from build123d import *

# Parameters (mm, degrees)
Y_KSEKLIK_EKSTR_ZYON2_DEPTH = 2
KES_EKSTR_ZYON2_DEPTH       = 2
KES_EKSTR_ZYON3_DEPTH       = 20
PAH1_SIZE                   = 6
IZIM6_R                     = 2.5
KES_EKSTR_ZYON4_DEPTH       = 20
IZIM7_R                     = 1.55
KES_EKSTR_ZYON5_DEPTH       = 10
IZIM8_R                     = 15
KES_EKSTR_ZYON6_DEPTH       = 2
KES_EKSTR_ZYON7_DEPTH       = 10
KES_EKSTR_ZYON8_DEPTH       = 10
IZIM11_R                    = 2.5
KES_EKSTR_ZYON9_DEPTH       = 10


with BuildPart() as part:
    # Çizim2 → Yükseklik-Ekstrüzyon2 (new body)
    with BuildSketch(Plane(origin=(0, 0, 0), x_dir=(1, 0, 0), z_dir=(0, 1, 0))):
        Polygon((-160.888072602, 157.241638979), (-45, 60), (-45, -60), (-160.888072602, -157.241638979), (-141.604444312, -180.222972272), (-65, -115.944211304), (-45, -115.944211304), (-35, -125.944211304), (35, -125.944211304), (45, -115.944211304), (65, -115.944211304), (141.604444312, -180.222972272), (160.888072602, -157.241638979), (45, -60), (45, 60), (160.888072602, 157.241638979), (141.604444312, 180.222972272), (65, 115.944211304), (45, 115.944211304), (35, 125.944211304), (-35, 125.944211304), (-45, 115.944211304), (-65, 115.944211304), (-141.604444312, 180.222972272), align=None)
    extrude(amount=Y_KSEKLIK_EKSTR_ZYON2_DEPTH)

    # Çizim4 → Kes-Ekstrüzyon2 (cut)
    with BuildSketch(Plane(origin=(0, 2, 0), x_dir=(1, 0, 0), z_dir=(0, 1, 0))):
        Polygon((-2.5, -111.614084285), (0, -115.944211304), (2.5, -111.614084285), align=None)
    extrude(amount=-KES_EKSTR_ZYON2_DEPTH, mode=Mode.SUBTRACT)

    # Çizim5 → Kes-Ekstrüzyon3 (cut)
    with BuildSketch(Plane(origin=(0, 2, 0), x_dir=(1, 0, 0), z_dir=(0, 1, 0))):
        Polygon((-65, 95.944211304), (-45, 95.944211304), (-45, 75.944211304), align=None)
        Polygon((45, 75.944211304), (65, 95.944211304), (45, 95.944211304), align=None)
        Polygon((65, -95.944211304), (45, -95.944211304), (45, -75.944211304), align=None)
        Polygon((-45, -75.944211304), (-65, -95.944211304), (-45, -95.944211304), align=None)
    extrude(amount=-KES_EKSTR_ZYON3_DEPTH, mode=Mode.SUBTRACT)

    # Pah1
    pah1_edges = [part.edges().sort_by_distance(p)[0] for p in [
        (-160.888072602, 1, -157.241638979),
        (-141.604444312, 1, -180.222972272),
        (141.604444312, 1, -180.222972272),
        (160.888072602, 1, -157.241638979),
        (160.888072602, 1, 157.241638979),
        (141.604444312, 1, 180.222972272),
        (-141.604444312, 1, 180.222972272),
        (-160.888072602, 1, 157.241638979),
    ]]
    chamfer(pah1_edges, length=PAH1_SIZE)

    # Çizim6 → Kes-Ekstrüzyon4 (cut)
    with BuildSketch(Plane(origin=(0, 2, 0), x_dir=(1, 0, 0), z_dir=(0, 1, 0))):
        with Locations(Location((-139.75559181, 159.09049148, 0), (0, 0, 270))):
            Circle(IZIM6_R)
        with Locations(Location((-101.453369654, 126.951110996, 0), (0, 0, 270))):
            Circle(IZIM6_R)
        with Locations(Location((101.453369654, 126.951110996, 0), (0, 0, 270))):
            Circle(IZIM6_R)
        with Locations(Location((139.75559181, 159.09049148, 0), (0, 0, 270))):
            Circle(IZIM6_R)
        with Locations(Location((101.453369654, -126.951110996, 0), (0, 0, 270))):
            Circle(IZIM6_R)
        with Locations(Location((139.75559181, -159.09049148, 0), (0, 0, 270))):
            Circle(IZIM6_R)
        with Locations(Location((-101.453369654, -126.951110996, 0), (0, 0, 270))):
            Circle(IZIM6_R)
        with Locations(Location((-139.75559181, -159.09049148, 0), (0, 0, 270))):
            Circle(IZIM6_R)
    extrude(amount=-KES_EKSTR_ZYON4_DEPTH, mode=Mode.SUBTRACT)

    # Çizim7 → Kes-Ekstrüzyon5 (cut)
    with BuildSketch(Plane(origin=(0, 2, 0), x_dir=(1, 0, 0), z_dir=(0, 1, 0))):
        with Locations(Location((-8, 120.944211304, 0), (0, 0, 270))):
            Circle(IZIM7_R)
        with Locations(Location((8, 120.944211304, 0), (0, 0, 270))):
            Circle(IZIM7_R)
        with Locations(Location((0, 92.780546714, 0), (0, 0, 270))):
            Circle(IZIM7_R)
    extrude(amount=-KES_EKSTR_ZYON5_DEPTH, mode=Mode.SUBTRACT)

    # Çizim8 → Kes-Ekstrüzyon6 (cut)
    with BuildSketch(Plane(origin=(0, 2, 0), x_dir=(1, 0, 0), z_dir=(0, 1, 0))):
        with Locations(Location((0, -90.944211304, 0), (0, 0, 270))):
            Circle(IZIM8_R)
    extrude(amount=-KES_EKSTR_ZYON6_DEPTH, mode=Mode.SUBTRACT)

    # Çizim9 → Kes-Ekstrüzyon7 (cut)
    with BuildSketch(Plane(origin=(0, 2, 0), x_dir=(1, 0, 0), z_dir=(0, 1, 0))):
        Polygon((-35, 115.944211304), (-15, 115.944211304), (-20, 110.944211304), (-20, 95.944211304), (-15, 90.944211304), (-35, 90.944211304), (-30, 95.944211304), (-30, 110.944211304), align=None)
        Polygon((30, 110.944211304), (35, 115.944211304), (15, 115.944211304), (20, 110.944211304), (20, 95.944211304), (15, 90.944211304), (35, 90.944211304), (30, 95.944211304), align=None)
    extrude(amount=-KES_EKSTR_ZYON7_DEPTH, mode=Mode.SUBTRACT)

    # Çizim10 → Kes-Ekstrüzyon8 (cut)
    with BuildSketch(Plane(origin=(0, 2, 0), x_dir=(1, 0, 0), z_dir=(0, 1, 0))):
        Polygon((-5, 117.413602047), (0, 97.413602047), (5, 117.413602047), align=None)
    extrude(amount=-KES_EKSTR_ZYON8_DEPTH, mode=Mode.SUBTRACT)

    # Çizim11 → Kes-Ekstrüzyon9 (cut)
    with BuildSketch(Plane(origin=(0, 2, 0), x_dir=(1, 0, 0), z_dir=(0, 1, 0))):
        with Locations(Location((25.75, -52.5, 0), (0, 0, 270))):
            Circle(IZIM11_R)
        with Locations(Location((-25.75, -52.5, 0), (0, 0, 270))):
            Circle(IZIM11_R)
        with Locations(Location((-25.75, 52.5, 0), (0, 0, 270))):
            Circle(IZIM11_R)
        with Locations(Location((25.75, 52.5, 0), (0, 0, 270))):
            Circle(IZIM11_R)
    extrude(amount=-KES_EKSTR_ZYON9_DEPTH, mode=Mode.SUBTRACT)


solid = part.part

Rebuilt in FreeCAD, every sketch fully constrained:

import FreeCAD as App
import Part
import Sketcher
Q = App.Units.Quantity


def edges_at(feature, points):
    """Names of the edges that pass closest to the given points."""
    edges = feature.Shape.Edges
    near = lambda p: min(range(len(edges)), key=lambda i: edges[i].distToShape(Part.Vertex(*p))[0])
    return sorted({f"Edge{near(p) + 1}" for p in points})

doc = App.newDocument("Part")
body = doc.addObject("PartDesign::Body", "Body")

# Sketch on XZ plane
sketch1 = body.newObject("Sketcher::SketchObject", "Sketch")
sketch1.AttachmentSupport = (doc.getObject("XZ_Plane"), [""])
sketch1.MapMode = "FlatFace"
sketch1.addGeometry(Part.LineSegment(App.Vector(-161, -157, 0), App.Vector(-45, -60, 0)), False)
sketch1.addGeometry(Part.LineSegment(App.Vector(-45, -60, 0), App.Vector(-45, 60, 0)), False)
sketch1.addGeometry(Part.LineSegment(App.Vector(-45, 60, 0), App.Vector(-161, 157, 0)), False)
sketch1.addGeometry(Part.LineSegment(App.Vector(-161, 157, 0), App.Vector(-142, 180, 0)), False)
sketch1.addGeometry(Part.LineSegment(App.Vector(-142, 180, 0), App.Vector(-65, 116, 0)), False)
sketch1.addGeometry(Part.LineSegment(App.Vector(-65, 116, 0), App.Vector(-45, 116, 0)), False)
sketch1.addGeometry(Part.LineSegment(App.Vector(-45, 116, 0), App.Vector(-35, 126, 0)), False)
sketch1.addGeometry(Part.LineSegment(App.Vector(-35, 126, 0), App.Vector(35, 126, 0)), False)
sketch1.addGeometry(Part.LineSegment(App.Vector(35, 126, 0), App.Vector(45, 116, 0)), False)
sketch1.addGeometry(Part.LineSegment(App.Vector(45, 116, 0), App.Vector(65, 116, 0)), False)
sketch1.addGeometry(Part.LineSegment(App.Vector(65, 116, 0), App.Vector(142, 180, 0)), False)
sketch1.addGeometry(Part.LineSegment(App.Vector(142, 180, 0), App.Vector(161, 157, 0)), False)
sketch1.addGeometry(Part.LineSegment(App.Vector(161, 157, 0), App.Vector(45, 60, 0)), False)
sketch1.addGeometry(Part.LineSegment(App.Vector(45, 60, 0), App.Vector(45, -60, 0)), False)
sketch1.addGeometry(Part.LineSegment(App.Vector(45, -60, 0), App.Vector(161, -157, 0)), False)
sketch1.addGeometry(Part.LineSegment(App.Vector(161, -157, 0), App.Vector(142, -180, 0)), False)
sketch1.addGeometry(Part.LineSegment(App.Vector(142, -180, 0), App.Vector(65, -116, 0)), False)
sketch1.addGeometry(Part.LineSegment(App.Vector(65, -116, 0), App.Vector(45, -116, 0)), False)
sketch1.addGeometry(Part.LineSegment(App.Vector(45, -116, 0), App.Vector(35, -126, 0)), False)
sketch1.addGeometry(Part.LineSegment(App.Vector(35, -126, 0), App.Vector(-35, -126, 0)), False)
sketch1.addGeometry(Part.LineSegment(App.Vector(-35, -126, 0), App.Vector(-45, -116, 0)), False)
sketch1.addGeometry(Part.LineSegment(App.Vector(-45, -116, 0), App.Vector(-65, -116, 0)), False)
sketch1.addGeometry(Part.LineSegment(App.Vector(-65, -116, 0), App.Vector(-142, -180, 0)), False)
sketch1.addGeometry(Part.LineSegment(App.Vector(-142, -180, 0), App.Vector(-161, -157, 0)), False)
sketch1.addConstraint(Sketcher.Constraint("Coincident", 0, 2, 1, 1))
sketch1.addConstraint(Sketcher.Constraint("Coincident", 1, 2, 2, 1))
sketch1.addConstraint(Sketcher.Constraint("Coincident", 2, 2, 3, 1))
sketch1.addConstraint(Sketcher.Constraint("Coincident", 3, 2, 4, 1))
sketch1.addConstraint(Sketcher.Constraint("Coincident", 4, 2, 5, 1))
sketch1.addConstraint(Sketcher.Constraint("Coincident", 5, 2, 6, 1))
sketch1.addConstraint(Sketcher.Constraint("Coincident", 6, 2, 7, 1))
sketch1.addConstraint(Sketcher.Constraint("Coincident", 7, 2, 8, 1))
sketch1.addConstraint(Sketcher.Constraint("Coincident", 8, 2, 9, 1))
sketch1.addConstraint(Sketcher.Constraint("Coincident", 9, 2, 10, 1))
sketch1.addConstraint(Sketcher.Constraint("Coincident", 10, 2, 11, 1))
sketch1.addConstraint(Sketcher.Constraint("Coincident", 11, 2, 12, 1))
sketch1.addConstraint(Sketcher.Constraint("Coincident", 12, 2, 13, 1))
sketch1.addConstraint(Sketcher.Constraint("Coincident", 13, 2, 14, 1))
sketch1.addConstraint(Sketcher.Constraint("Coincident", 14, 2, 15, 1))
sketch1.addConstraint(Sketcher.Constraint("Coincident", 15, 2, 16, 1))
sketch1.addConstraint(Sketcher.Constraint("Coincident", 16, 2, 17, 1))
sketch1.addConstraint(Sketcher.Constraint("Coincident", 17, 2, 18, 1))
sketch1.addConstraint(Sketcher.Constraint("Coincident", 18, 2, 19, 1))
sketch1.addConstraint(Sketcher.Constraint("Coincident", 19, 2, 20, 1))
sketch1.addConstraint(Sketcher.Constraint("Coincident", 20, 2, 21, 1))
sketch1.addConstraint(Sketcher.Constraint("Coincident", 21, 2, 22, 1))
sketch1.addConstraint(Sketcher.Constraint("Coincident", 22, 2, 23, 1))
sketch1.addConstraint(Sketcher.Constraint("Coincident", 23, 2, 0, 1))
sketch1.addConstraint(Sketcher.Constraint("Vertical", 1))
sketch1.addConstraint(Sketcher.Constraint("Horizontal", 5))
sketch1.addConstraint(Sketcher.Constraint("Horizontal", 7))
sketch1.addConstraint(Sketcher.Constraint("Horizontal", 9))
sketch1.addConstraint(Sketcher.Constraint("Vertical", 13))
sketch1.addConstraint(Sketcher.Constraint("Horizontal", 17))
sketch1.addConstraint(Sketcher.Constraint("Horizontal", 19))
sketch1.addConstraint(Sketcher.Constraint("Horizontal", 21))
sketch1.addConstraint(Sketcher.Constraint("Symmetric", 0, 2, 12, 2, -1, 1))
sketch1.addConstraint(Sketcher.Constraint("Symmetric", 2, 2, 14, 2, -1, 1))
sketch1.addConstraint(Sketcher.Constraint("Symmetric", 3, 2, 15, 2, -1, 1))
sketch1.addConstraint(Sketcher.Constraint("Symmetric", 4, 2, 16, 2, -1, 1))
sketch1.addConstraint(Sketcher.Constraint("Symmetric", 6, 2, 18, 2, -1, 1))
sketch1.addConstraint(Sketcher.Constraint("Symmetric", 8, 2, 20, 2, -1, 1))
sketch1.addConstraint(Sketcher.Constraint("Symmetric", 10, 2, 22, 2, -1, 1))
sketch1.addConstraint(Sketcher.Constraint("Symmetric", 11, 2, 23, 2, -1, 1))
sketch1.addConstraint(Sketcher.Constraint("Symmetric", 5, 2, 8, 2, -2))
sketch1.addConstraint(Sketcher.Constraint("Symmetric", 3, 2, 10, 2, -2))
sketch1.addConstraint(Sketcher.Constraint("Symmetric", 2, 2, 11, 2, -2))
sketch1.addConstraint(Sketcher.Constraint("Perpendicular", 2, 3))
sketch1.addConstraint(Sketcher.Constraint("Perpendicular", 3, 4))
sketch1.addConstraint(Sketcher.Constraint("Perpendicular", 6, 8))
sketch1.addConstraint(Sketcher.Constraint("Parallel", 0, 10))
sketch1.addConstraint(Sketcher.Constraint("Perpendicular", 10, 11))
sketch1.addConstraint(Sketcher.Constraint("Parallel", 4, 14))
sketch1.addConstraint(Sketcher.Constraint("Perpendicular", 8, 18))
sketch1.addConstraint(Sketcher.Constraint("Perpendicular", 18, 20))
sketch1.addConstraint(Sketcher.Constraint("Parallel", 12, 22))
sketch1.addConstraint(Sketcher.Constraint("Vertical", 1, 2, 5, 2))
sketch1.addConstraint(Sketcher.Constraint("Vertical", 7, 2, 18, 2))
sketch1.addConstraint(Sketcher.Constraint("DistanceX", 5, 1, 5, 2, 20.0))
sketch1.addConstraint(Sketcher.Constraint("DistanceX", 7, 1, 7, 2, 70.0))
sketch1.addConstraint(Sketcher.Constraint("DistanceY", 1, 1, 1, 2, 120.0))
sketch1.addConstraint(Sketcher.Constraint("Angle", 0, Q("40 deg")))
sketch1.addConstraint(Sketcher.Constraint("Distance", 3, 30.0))
sketch1.addConstraint(Sketcher.Constraint("Distance", 4, 100.0))
sketch1.addConstraint(Sketcher.Constraint("DistanceX", 0, 2, -1, 1, 45.0))
pad1 = body.newObject("PartDesign::Pad", "Pad")
pad1.Profile = sketch1
pad1.Length = 2
pad1.Reversed = True

# Sketch on XZ plane
sketch2 = body.newObject("Sketcher::SketchObject", "Sketch001")
sketch2.AttachmentSupport = (doc.getObject("XZ_Plane"), [""])
sketch2.MapMode = "FlatFace"
sketch2.AttachmentOffset = App.Placement(App.Vector(0, 0, -2), App.Rotation())
sketch2.addGeometry(Part.LineSegment(App.Vector(-2, 112, 0), App.Vector(0, 116, 0)), False)
sketch2.addGeometry(Part.LineSegment(App.Vector(0, 116, 0), App.Vector(2, 112, 0)), False)
sketch2.addGeometry(Part.LineSegment(App.Vector(2, 112, 0), App.Vector(-2, 112, 0)), False)
sketch2.addConstraint(Sketcher.Constraint("Coincident", 0, 2, 1, 1))
sketch2.addConstraint(Sketcher.Constraint("Coincident", 1, 2, 2, 1))
sketch2.addConstraint(Sketcher.Constraint("Coincident", 2, 2, 0, 1))
sketch2.addConstraint(Sketcher.Constraint("Horizontal", 2))
sketch2.addConstraint(Sketcher.Constraint("PointOnObject", 0, 2, -2))
sketch2.addConstraint(Sketcher.Constraint("Equal", 0, 1))
sketch2.addConstraint(Sketcher.Constraint("DistanceX", 2, 2, 2, 1, 5.0))
sketch2.addConstraint(Sketcher.Constraint("Angle", 0, Q("60 deg")))
sketch2.addConstraint(Sketcher.Constraint("DistanceY", -1, 1, 0, 2, 115.944211))
pocket1 = body.newObject("PartDesign::Pocket", "Pocket")
pocket1.Profile = sketch2
pocket1.Length = 2
pocket1.Reversed = True

# Sketch on XZ plane
sketch3 = body.newObject("Sketcher::SketchObject", "Sketch002")
sketch3.AttachmentSupport = (doc.getObject("XZ_Plane"), [""])
sketch3.MapMode = "FlatFace"
sketch3.AttachmentOffset = App.Placement(App.Vector(0, 0, -2), App.Rotation())
sketch3.addGeometry(Part.LineSegment(App.Vector(-45, -96, 0), App.Vector(-65, -96, 0)), False)
sketch3.addGeometry(Part.LineSegment(App.Vector(-65, -96, 0), App.Vector(-45, -76, 0)), False)
sketch3.addGeometry(Part.LineSegment(App.Vector(-45, -76, 0), App.Vector(-45, -96, 0)), False)
sketch3.addGeometry(Part.LineSegment(App.Vector(45, -76, 0), App.Vector(65, -96, 0)), False)
sketch3.addGeometry(Part.LineSegment(App.Vector(65, -96, 0), App.Vector(45, -96, 0)), False)
sketch3.addGeometry(Part.LineSegment(App.Vector(45, -96, 0), App.Vector(45, -76, 0)), False)
sketch3.addGeometry(Part.LineSegment(App.Vector(45, 96, 0), App.Vector(65, 96, 0)), False)
sketch3.addGeometry(Part.LineSegment(App.Vector(65, 96, 0), App.Vector(45, 76, 0)), False)
sketch3.addGeometry(Part.LineSegment(App.Vector(45, 76, 0), App.Vector(45, 96, 0)), False)
sketch3.addGeometry(Part.LineSegment(App.Vector(-45, 76, 0), App.Vector(-65, 96, 0)), False)
sketch3.addGeometry(Part.LineSegment(App.Vector(-65, 96, 0), App.Vector(-45, 96, 0)), False)
sketch3.addGeometry(Part.LineSegment(App.Vector(-45, 96, 0), App.Vector(-45, 76, 0)), False)
sketch3.addConstraint(Sketcher.Constraint("Coincident", 0, 2, 1, 1))
sketch3.addConstraint(Sketcher.Constraint("Coincident", 1, 2, 2, 1))
sketch3.addConstraint(Sketcher.Constraint("Coincident", 2, 2, 0, 1))
sketch3.addConstraint(Sketcher.Constraint("Coincident", 3, 2, 4, 1))
sketch3.addConstraint(Sketcher.Constraint("Coincident", 4, 2, 5, 1))
sketch3.addConstraint(Sketcher.Constraint("Coincident", 5, 2, 3, 1))
sketch3.addConstraint(Sketcher.Constraint("Coincident", 6, 2, 7, 1))
sketch3.addConstraint(Sketcher.Constraint("Coincident", 7, 2, 8, 1))
sketch3.addConstraint(Sketcher.Constraint("Coincident", 8, 2, 6, 1))
sketch3.addConstraint(Sketcher.Constraint("Coincident", 9, 2, 10, 1))
sketch3.addConstraint(Sketcher.Constraint("Coincident", 10, 2, 11, 1))
sketch3.addConstraint(Sketcher.Constraint("Coincident", 11, 2, 9, 1))
sketch3.addConstraint(Sketcher.Constraint("Horizontal", 0))
sketch3.addConstraint(Sketcher.Constraint("Vertical", 2))
sketch3.addConstraint(Sketcher.Constraint("Horizontal", 4))
sketch3.addConstraint(Sketcher.Constraint("Vertical", 5))
sketch3.addConstraint(Sketcher.Constraint("Horizontal", 6))
sketch3.addConstraint(Sketcher.Constraint("Vertical", 8))
sketch3.addConstraint(Sketcher.Constraint("Horizontal", 10))
sketch3.addConstraint(Sketcher.Constraint("Vertical", 11))
sketch3.addConstraint(Sketcher.Constraint("Symmetric", 0, 2, 6, 2, -1, 1))
sketch3.addConstraint(Sketcher.Constraint("Symmetric", 1, 2, 7, 2, -1, 1))
sketch3.addConstraint(Sketcher.Constraint("Symmetric", 3, 2, 9, 2, -1, 1))
sketch3.addConstraint(Sketcher.Constraint("Symmetric", 5, 2, 11, 2, -1, 1))
sketch3.addConstraint(Sketcher.Constraint("Symmetric", 0, 2, 3, 2, -2))
sketch3.addConstraint(Sketcher.Constraint("Symmetric", 1, 2, 5, 2, -2))
sketch3.addConstraint(Sketcher.Constraint("Perpendicular", 1, 3))
sketch3.addConstraint(Sketcher.Constraint("DistanceX", 0, 2, 0, 1, 20.0))
sketch3.addConstraint(Sketcher.Constraint("DistanceX", 0, 2, -1, 1, 65.0))
sketch3.addConstraint(Sketcher.Constraint("DistanceY", 0, 2, -1, 1, 95.944211))
pocket2 = body.newObject("PartDesign::Pocket", "Pocket001")
pocket2.Profile = sketch3
pocket2.Length = 20
pocket2.Reversed = True
doc.recompute()

chamfer = body.newObject("PartDesign::Chamfer", "Chamfer")
chamfer.Base = (pocket2, edges_at(pocket2, [
    (-160.888, 1, -157.242),
    (-141.604, 1, -180.223),
    (141.604, 1, -180.223),
    (160.888, 1, -157.242),
    (160.888, 1, 157.242),
    (141.604, 1, 180.223),
    (-141.604, 1, 180.223),
    (-160.888, 1, 157.242),
]))
chamfer.Size = 6

# Sketch on XZ plane
sketch4 = body.newObject("Sketcher::SketchObject", "Sketch003")
sketch4.AttachmentSupport = (doc.getObject("XZ_Plane"), [""])
sketch4.MapMode = "FlatFace"
sketch4.AttachmentOffset = App.Placement(App.Vector(0, 0, -2), App.Rotation())
sketch4.addGeometry(Part.Circle(App.Vector(-139.8, -159.1, 0), App.Vector(0, 0, 1), 2.5), False)
sketch4.addGeometry(Part.Circle(App.Vector(-101.5, -127, 0), App.Vector(0, 0, 1), 2.5), False)
sketch4.addGeometry(Part.Circle(App.Vector(101.5, -127, 0), App.Vector(0, 0, 1), 2.5), False)
sketch4.addGeometry(Part.Circle(App.Vector(139.8, -159.1, 0), App.Vector(0, 0, 1), 2.5), False)
sketch4.addGeometry(Part.Circle(App.Vector(101.5, 127, 0), App.Vector(0, 0, 1), 2.5), False)
sketch4.addGeometry(Part.Circle(App.Vector(139.8, 159.1, 0), App.Vector(0, 0, 1), 2.5), False)
sketch4.addGeometry(Part.Circle(App.Vector(-101.5, 127, 0), App.Vector(0, 0, 1), 2.5), False)
sketch4.addGeometry(Part.Circle(App.Vector(-139.8, 159.1, 0), App.Vector(0, 0, 1), 2.5), False)
sketch4.addConstraint(Sketcher.Constraint("Equal", 0, 1))
sketch4.addConstraint(Sketcher.Constraint("Equal", 1, 2))
sketch4.addConstraint(Sketcher.Constraint("Equal", 2, 3))
sketch4.addConstraint(Sketcher.Constraint("Equal", 3, 4))
sketch4.addConstraint(Sketcher.Constraint("Equal", 4, 5))
sketch4.addConstraint(Sketcher.Constraint("Equal", 5, 6))
sketch4.addConstraint(Sketcher.Constraint("Equal", 6, 7))
sketch4.addConstraint(Sketcher.Constraint("Symmetric", 1, 3, 4, 3, -1, 1))
sketch4.addConstraint(Sketcher.Constraint("Symmetric", 0, 3, 5, 3, -1, 1))
sketch4.addConstraint(Sketcher.Constraint("Symmetric", 2, 3, 6, 3, -1, 1))
sketch4.addConstraint(Sketcher.Constraint("Symmetric", 3, 3, 7, 3, -1, 1))
sketch4.addConstraint(Sketcher.Constraint("Symmetric", 1, 3, 2, 3, -2))
sketch4.addConstraint(Sketcher.Constraint("Symmetric", 0, 3, 3, 3, -2))
sketch4.addConstraint(Sketcher.Constraint("Diameter", 0, 5.0))
sketch4.addConstraint(Sketcher.Constraint("DistanceX", 0, 3, -1, 1, 139.755592))
sketch4.addConstraint(Sketcher.Constraint("DistanceY", 0, 3, -1, 1, 159.090491))
sketch4.addConstraint(Sketcher.Constraint("DistanceX", 1, 3, -1, 1, 101.45337))
sketch4.addConstraint(Sketcher.Constraint("DistanceY", 1, 3, -1, 1, 126.951111))
pocket3 = body.newObject("PartDesign::Pocket", "Pocket002")
pocket3.Profile = sketch4
pocket3.Length = 20
pocket3.Reversed = True

# Sketch on XZ plane
sketch5 = body.newObject("Sketcher::SketchObject", "Sketch004")
sketch5.AttachmentSupport = (doc.getObject("XZ_Plane"), [""])
sketch5.MapMode = "FlatFace"
sketch5.AttachmentOffset = App.Placement(App.Vector(0, 0, -2), App.Rotation())
sketch5.addGeometry(Part.Circle(App.Vector(-8, -120.9, 0), App.Vector(0, 0, 1), 1.6), False)
sketch5.addGeometry(Part.Circle(App.Vector(8, -120.9, 0), App.Vector(0, 0, 1), 1.6), False)
sketch5.addGeometry(Part.Circle(App.Vector(0, -92.8, 0), App.Vector(0, 0, 1), 1.6), False)
sketch5.addConstraint(Sketcher.Constraint("Equal", 0, 1))
sketch5.addConstraint(Sketcher.Constraint("Equal", 1, 2))
sketch5.addConstraint(Sketcher.Constraint("Symmetric", 0, 3, 1, 3, -2))
sketch5.addConstraint(Sketcher.Constraint("PointOnObject", 2, 3, -2))
sketch5.addConstraint(Sketcher.Constraint("Diameter", 0, 3.1))
sketch5.addConstraint(Sketcher.Constraint("DistanceX", 0, 3, -1, 1, 8.0))
sketch5.addConstraint(Sketcher.Constraint("DistanceY", 0, 3, -1, 1, 120.944211))
sketch5.addConstraint(Sketcher.Constraint("DistanceY", 2, 3, -1, 1, 92.780547))
pocket4 = body.newObject("PartDesign::Pocket", "Pocket003")
pocket4.Profile = sketch5
pocket4.Length = 10
pocket4.Reversed = True

# Sketch on XZ plane
sketch6 = body.newObject("Sketcher::SketchObject", "Sketch005")
sketch6.AttachmentSupport = (doc.getObject("XZ_Plane"), [""])
sketch6.MapMode = "FlatFace"
sketch6.AttachmentOffset = App.Placement(App.Vector(0, 0, -2), App.Rotation())
sketch6.addGeometry(Part.Circle(App.Vector(0, 91, 0), App.Vector(0, 0, 1), 15), False)
sketch6.addConstraint(Sketcher.Constraint("PointOnObject", 0, 3, -2))
sketch6.addConstraint(Sketcher.Constraint("Diameter", 0, 30.0))
sketch6.addConstraint(Sketcher.Constraint("DistanceY", -1, 1, 0, 3, 90.944211))
pocket5 = body.newObject("PartDesign::Pocket", "Pocket004")
pocket5.Profile = sketch6
pocket5.Length = 2
pocket5.Reversed = True

# Sketch on XZ plane
sketch7 = body.newObject("Sketcher::SketchObject", "Sketch006")
sketch7.AttachmentSupport = (doc.getObject("XZ_Plane"), [""])
sketch7.MapMode = "FlatFace"
sketch7.AttachmentOffset = App.Placement(App.Vector(0, 0, -2), App.Rotation())
sketch7.addGeometry(Part.LineSegment(App.Vector(-15, -116, 0), App.Vector(-35, -116, 0)), False)
sketch7.addGeometry(Part.LineSegment(App.Vector(-35, -116, 0), App.Vector(-30, -111, 0)), False)
sketch7.addGeometry(Part.LineSegment(App.Vector(-30, -111, 0), App.Vector(-30, -96, 0)), False)
sketch7.addGeometry(Part.LineSegment(App.Vector(-30, -96, 0), App.Vector(-35, -91, 0)), False)
sketch7.addGeometry(Part.LineSegment(App.Vector(-35, -91, 0), App.Vector(-15, -91, 0)), False)
sketch7.addGeometry(Part.LineSegment(App.Vector(-15, -91, 0), App.Vector(-20, -96, 0)), False)
sketch7.addGeometry(Part.LineSegment(App.Vector(-20, -96, 0), App.Vector(-20, -111, 0)), False)
sketch7.addGeometry(Part.LineSegment(App.Vector(-20, -111, 0), App.Vector(-15, -116, 0)), False)
sketch7.addGeometry(Part.LineSegment(App.Vector(30, -111, 0), App.Vector(35, -116, 0)), False)
sketch7.addGeometry(Part.LineSegment(App.Vector(35, -116, 0), App.Vector(15, -116, 0)), False)
sketch7.addGeometry(Part.LineSegment(App.Vector(15, -116, 0), App.Vector(20, -111, 0)), False)
sketch7.addGeometry(Part.LineSegment(App.Vector(20, -111, 0), App.Vector(20, -96, 0)), False)
sketch7.addGeometry(Part.LineSegment(App.Vector(20, -96, 0), App.Vector(15, -91, 0)), False)
sketch7.addGeometry(Part.LineSegment(App.Vector(15, -91, 0), App.Vector(35, -91, 0)), False)
sketch7.addGeometry(Part.LineSegment(App.Vector(35, -91, 0), App.Vector(30, -96, 0)), False)
sketch7.addGeometry(Part.LineSegment(App.Vector(30, -96, 0), App.Vector(30, -111, 0)), False)
sketch7.addConstraint(Sketcher.Constraint("Coincident", 0, 2, 1, 1))
sketch7.addConstraint(Sketcher.Constraint("Coincident", 1, 2, 2, 1))
sketch7.addConstraint(Sketcher.Constraint("Coincident", 2, 2, 3, 1))
sketch7.addConstraint(Sketcher.Constraint("Coincident", 3, 2, 4, 1))
sketch7.addConstraint(Sketcher.Constraint("Coincident", 4, 2, 5, 1))
sketch7.addConstraint(Sketcher.Constraint("Coincident", 5, 2, 6, 1))
sketch7.addConstraint(Sketcher.Constraint("Coincident", 6, 2, 7, 1))
sketch7.addConstraint(Sketcher.Constraint("Coincident", 7, 2, 0, 1))
sketch7.addConstraint(Sketcher.Constraint("Coincident", 8, 2, 9, 1))
sketch7.addConstraint(Sketcher.Constraint("Coincident", 9, 2, 10, 1))
sketch7.addConstraint(Sketcher.Constraint("Coincident", 10, 2, 11, 1))
sketch7.addConstraint(Sketcher.Constraint("Coincident", 11, 2, 12, 1))
sketch7.addConstraint(Sketcher.Constraint("Coincident", 12, 2, 13, 1))
sketch7.addConstraint(Sketcher.Constraint("Coincident", 13, 2, 14, 1))
sketch7.addConstraint(Sketcher.Constraint("Coincident", 14, 2, 15, 1))
sketch7.addConstraint(Sketcher.Constraint("Coincident", 15, 2, 8, 1))
sketch7.addConstraint(Sketcher.Constraint("Horizontal", 0))
sketch7.addConstraint(Sketcher.Constraint("Vertical", 2))
sketch7.addConstraint(Sketcher.Constraint("Horizontal", 4))
sketch7.addConstraint(Sketcher.Constraint("Vertical", 6))
sketch7.addConstraint(Sketcher.Constraint("Horizontal", 9))
sketch7.addConstraint(Sketcher.Constraint("Vertical", 11))
sketch7.addConstraint(Sketcher.Constraint("Horizontal", 13))
sketch7.addConstraint(Sketcher.Constraint("Vertical", 15))
sketch7.addConstraint(Sketcher.Constraint("Symmetric", 0, 2, 8, 2, -2))
sketch7.addConstraint(Sketcher.Constraint("Symmetric", 6, 2, 10, 2, -2))
sketch7.addConstraint(Sketcher.Constraint("Symmetric", 4, 2, 12, 2, -2))
sketch7.addConstraint(Sketcher.Constraint("Symmetric", 2, 2, 14, 2, -2))
sketch7.addConstraint(Sketcher.Constraint("Perpendicular", 1, 3))
sketch7.addConstraint(Sketcher.Constraint("Perpendicular", 3, 5))
sketch7.addConstraint(Sketcher.Constraint("Perpendicular", 5, 7))
sketch7.addConstraint(Sketcher.Constraint("Parallel", 7, 8))
sketch7.addConstraint(Sketcher.Constraint("Perpendicular", 8, 10))
sketch7.addConstraint(Sketcher.Constraint("Perpendicular", 10, 12))
sketch7.addConstraint(Sketcher.Constraint("Perpendicular", 12, 14))
sketch7.addConstraint(Sketcher.Constraint("Horizontal", 2, 2, 5, 2))
sketch7.addConstraint(Sketcher.Constraint("Horizontal", 1, 2, 6, 2))
sketch7.addConstraint(Sketcher.Constraint("Horizontal", 5, 2, 11, 2))
sketch7.addConstraint(Sketcher.Constraint("Vertical", 0, 2, 3, 2))
sketch7.addConstraint(Sketcher.Constraint("DistanceX", 0, 2, 0, 1, 20.0))
sketch7.addConstraint(Sketcher.Constraint("DistanceY", 2, 1, 2, 2, 15.0))
sketch7.addConstraint(Sketcher.Constraint("DistanceX", 0, 2, -1, 1, 35.0))
sketch7.addConstraint(Sketcher.Constraint("DistanceX", 1, 2, -1, 1, 30.0))
sketch7.addConstraint(Sketcher.Constraint("DistanceY", 0, 2, -1, 1, 115.944211))
pocket6 = body.newObject("PartDesign::Pocket", "Pocket005")
pocket6.Profile = sketch7
pocket6.Length = 10
pocket6.Reversed = True

# Sketch on XZ plane
sketch8 = body.newObject("Sketcher::SketchObject", "Sketch007")
sketch8.AttachmentSupport = (doc.getObject("XZ_Plane"), [""])
sketch8.MapMode = "FlatFace"
sketch8.AttachmentOffset = App.Placement(App.Vector(0, 0, -2), App.Rotation())
sketch8.addGeometry(Part.LineSegment(App.Vector(-5, -117, 0), App.Vector(0, -97, 0)), False)
sketch8.addGeometry(Part.LineSegment(App.Vector(0, -97, 0), App.Vector(5, -117, 0)), False)
sketch8.addGeometry(Part.LineSegment(App.Vector(5, -117, 0), App.Vector(-5, -117, 0)), False)
sketch8.addConstraint(Sketcher.Constraint("Coincident", 0, 2, 1, 1))
sketch8.addConstraint(Sketcher.Constraint("Coincident", 1, 2, 2, 1))
sketch8.addConstraint(Sketcher.Constraint("Coincident", 2, 2, 0, 1))
sketch8.addConstraint(Sketcher.Constraint("Horizontal", 2))
sketch8.addConstraint(Sketcher.Constraint("PointOnObject", 0, 2, -2))
sketch8.addConstraint(Sketcher.Constraint("Equal", 0, 1))
sketch8.addConstraint(Sketcher.Constraint("DistanceX", 2, 2, 2, 1, 10.0))
sketch8.addConstraint(Sketcher.Constraint("DistanceY", 1, 2, 0, 2, 20.0))
sketch8.addConstraint(Sketcher.Constraint("DistanceY", 0, 2, -1, 1, 97.413602))
pocket7 = body.newObject("PartDesign::Pocket", "Pocket006")
pocket7.Profile = sketch8
pocket7.Length = 10
pocket7.Reversed = True

# Sketch on XZ plane
sketch9 = body.newObject("Sketcher::SketchObject", "Sketch008")
sketch9.AttachmentSupport = (doc.getObject("XZ_Plane"), [""])
sketch9.MapMode = "FlatFace"
sketch9.AttachmentOffset = App.Placement(App.Vector(0, 0, -2), App.Rotation())
sketch9.addGeometry(Part.Circle(App.Vector(25.8, 52.5, 0), App.Vector(0, 0, 1), 2.5), False)
sketch9.addGeometry(Part.Circle(App.Vector(-25.8, 52.5, 0), App.Vector(0, 0, 1), 2.5), False)
sketch9.addGeometry(Part.Circle(App.Vector(-25.8, -52.5, 0), App.Vector(0, 0, 1), 2.5), False)
sketch9.addGeometry(Part.Circle(App.Vector(25.8, -52.5, 0), App.Vector(0, 0, 1), 2.5), False)
sketch9.addConstraint(Sketcher.Constraint("Equal", 0, 1))
sketch9.addConstraint(Sketcher.Constraint("Equal", 1, 2))
sketch9.addConstraint(Sketcher.Constraint("Equal", 2, 3))
sketch9.addConstraint(Sketcher.Constraint("Symmetric", 0, 3, 2, 3, -1, 1))
sketch9.addConstraint(Sketcher.Constraint("Symmetric", 1, 3, 3, 3, -1, 1))
sketch9.addConstraint(Sketcher.Constraint("Symmetric", 0, 3, 1, 3, -2))
sketch9.addConstraint(Sketcher.Constraint("Diameter", 0, 5.0))
sketch9.addConstraint(Sketcher.Constraint("DistanceY", 2, 3, 1, 3, 105.0))
sketch9.addConstraint(Sketcher.Constraint("DistanceX", 1, 3, 0, 3, 51.5))
pocket8 = body.newObject("PartDesign::Pocket", "Pocket007")
pocket8.Profile = sketch9
pocket8.Length = 10
pocket8.Reversed = True

doc.recompute()
